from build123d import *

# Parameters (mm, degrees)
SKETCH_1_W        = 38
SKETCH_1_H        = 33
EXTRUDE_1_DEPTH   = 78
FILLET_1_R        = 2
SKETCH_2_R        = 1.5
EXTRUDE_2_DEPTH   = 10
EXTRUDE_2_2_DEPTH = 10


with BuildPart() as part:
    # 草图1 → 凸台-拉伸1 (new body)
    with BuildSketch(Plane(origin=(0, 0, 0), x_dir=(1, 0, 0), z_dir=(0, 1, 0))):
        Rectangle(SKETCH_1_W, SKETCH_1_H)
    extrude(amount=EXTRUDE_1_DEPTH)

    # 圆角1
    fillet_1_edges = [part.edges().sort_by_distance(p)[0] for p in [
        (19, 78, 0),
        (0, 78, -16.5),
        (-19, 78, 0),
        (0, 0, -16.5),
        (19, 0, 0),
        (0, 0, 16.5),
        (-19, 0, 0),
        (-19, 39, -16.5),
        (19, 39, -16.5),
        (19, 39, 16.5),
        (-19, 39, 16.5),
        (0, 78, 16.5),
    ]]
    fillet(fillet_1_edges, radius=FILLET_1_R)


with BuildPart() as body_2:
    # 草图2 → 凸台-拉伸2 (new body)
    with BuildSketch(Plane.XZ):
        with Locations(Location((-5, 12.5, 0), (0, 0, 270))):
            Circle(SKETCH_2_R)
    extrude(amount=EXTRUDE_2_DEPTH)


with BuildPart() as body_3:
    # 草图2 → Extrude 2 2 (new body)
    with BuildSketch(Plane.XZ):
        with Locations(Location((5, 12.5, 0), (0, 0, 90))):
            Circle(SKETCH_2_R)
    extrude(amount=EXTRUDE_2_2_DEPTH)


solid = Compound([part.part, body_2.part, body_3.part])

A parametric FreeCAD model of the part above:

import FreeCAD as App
import Part
import Sketcher
from FreeCAD import Vector
Q = App.Units.Quantity


def add_polygon(sketch, points):
    """Adds a closed chain of lines whose ends are joined by coincident constraints."""
    first, n = sketch.GeometryCount, len(points)
    for a, b in zip(points, points[1:] + points[:1]):
        sketch.addGeometry(Part.LineSegment(App.Vector(*a, 0), App.Vector(*b, 0)), False)
    for i in range(n):
        sketch.addConstraint(Sketcher.Constraint("Coincident", first + i, 2, first + (i + 1) % n, 1))

doc = App.newDocument("Part")
body = doc.addObject("PartDesign::Body", "Body")

# Sketch on XZ plane
sketch1 = body.newObject("Sketcher::SketchObject", "Sketch")
sketch1.AttachmentSupport = (doc.getObject("XZ_Plane"), [""])
sketch1.MapMode = "FlatFace"
add_polygon(sketch1, [(-19, -16), (-19, 16), (19, 16), (19, -16)])  # lines 0-3
sketch1.addConstraint([
    Sketcher.Constraint("Vertical", 0),
    Sketcher.Constraint("Horizontal", 1),
    Sketcher.Constraint("Vertical", 2),
    Sketcher.Constraint("Horizontal", 3),
    Sketcher.Constraint("Symmetric", 0, 2, 2, 2, -1, 1),
    Sketcher.Constraint("DistanceX", 1, 1, 1, 2, Q("38 mm")),
    Sketcher.Constraint("DistanceY", 0, 1, 0, 2, Q("33 mm")),
])
pad1 = body.newObject("PartDesign::Pad", "Pad")
pad1.Profile = sketch1
pad1.Length = 78
pad1.Reversed = True
doc.recompute()

fillet = body.newObject("PartDesign::Fillet", "Fillet")
fillet.Base = (pad1, ["Edge1"])
fillet.UseAllEdges = True
fillet.Radius = 2
body2 = doc.addObject("PartDesign::Body", "Body001")

# Sketch on XZ plane
sketch2 = body2.newObject("Sketcher::SketchObject", "Sketch001")
sketch2.AttachmentSupport = (doc.getObject("XZ_Plane001"), [""])
sketch2.MapMode = "FlatFace"
sketch2.addGeometry(Part.Circle(Vector(-5, 12.5, 0), Vector(0, 0, 1), 1.5), False)
sketch2.addConstraint([
    Sketcher.Constraint("Diameter", 0, Q("3 mm")),
    Sketcher.Constraint("DistanceX", 0, 3, -1, 1, Q("5 mm")),
    Sketcher.Constraint("DistanceY", -1, 1, 0, 3, Q("12.5 mm")),
])
pad2 = body2.newObject("PartDesign::Pad", "Pad001")
pad2.Profile = sketch2
pad2.Length = 10
body3 = doc.addObject("PartDesign::Body", "Body002")

# Sketch on XZ plane
sketch3 = body3.newObject("Sketcher::SketchObject", "Sketch002")
sketch3.AttachmentSupport = (doc.getObject("XZ_Plane002"), [""])
sketch3.MapMode = "FlatFace"
sketch3.addGeometry(Part.Circle(Vector(5, 12.5, 0), Vector(0, 0, 1), 1.5), False)
sketch3.addConstraint([
    Sketcher.Constraint("Diameter", 0, Q("3 mm")),
    Sketcher.Constraint("DistanceX", -1, 1, 0, 3, Q("5 mm")),
    Sketcher.Constraint("DistanceY", -1, 1, 0, 3, Q("12.5 mm")),
])
pad3 = body3.newObject("PartDesign::Pad", "Pad002")
pad3.Profile = sketch3
pad3.Length = 10

doc.recompute()
